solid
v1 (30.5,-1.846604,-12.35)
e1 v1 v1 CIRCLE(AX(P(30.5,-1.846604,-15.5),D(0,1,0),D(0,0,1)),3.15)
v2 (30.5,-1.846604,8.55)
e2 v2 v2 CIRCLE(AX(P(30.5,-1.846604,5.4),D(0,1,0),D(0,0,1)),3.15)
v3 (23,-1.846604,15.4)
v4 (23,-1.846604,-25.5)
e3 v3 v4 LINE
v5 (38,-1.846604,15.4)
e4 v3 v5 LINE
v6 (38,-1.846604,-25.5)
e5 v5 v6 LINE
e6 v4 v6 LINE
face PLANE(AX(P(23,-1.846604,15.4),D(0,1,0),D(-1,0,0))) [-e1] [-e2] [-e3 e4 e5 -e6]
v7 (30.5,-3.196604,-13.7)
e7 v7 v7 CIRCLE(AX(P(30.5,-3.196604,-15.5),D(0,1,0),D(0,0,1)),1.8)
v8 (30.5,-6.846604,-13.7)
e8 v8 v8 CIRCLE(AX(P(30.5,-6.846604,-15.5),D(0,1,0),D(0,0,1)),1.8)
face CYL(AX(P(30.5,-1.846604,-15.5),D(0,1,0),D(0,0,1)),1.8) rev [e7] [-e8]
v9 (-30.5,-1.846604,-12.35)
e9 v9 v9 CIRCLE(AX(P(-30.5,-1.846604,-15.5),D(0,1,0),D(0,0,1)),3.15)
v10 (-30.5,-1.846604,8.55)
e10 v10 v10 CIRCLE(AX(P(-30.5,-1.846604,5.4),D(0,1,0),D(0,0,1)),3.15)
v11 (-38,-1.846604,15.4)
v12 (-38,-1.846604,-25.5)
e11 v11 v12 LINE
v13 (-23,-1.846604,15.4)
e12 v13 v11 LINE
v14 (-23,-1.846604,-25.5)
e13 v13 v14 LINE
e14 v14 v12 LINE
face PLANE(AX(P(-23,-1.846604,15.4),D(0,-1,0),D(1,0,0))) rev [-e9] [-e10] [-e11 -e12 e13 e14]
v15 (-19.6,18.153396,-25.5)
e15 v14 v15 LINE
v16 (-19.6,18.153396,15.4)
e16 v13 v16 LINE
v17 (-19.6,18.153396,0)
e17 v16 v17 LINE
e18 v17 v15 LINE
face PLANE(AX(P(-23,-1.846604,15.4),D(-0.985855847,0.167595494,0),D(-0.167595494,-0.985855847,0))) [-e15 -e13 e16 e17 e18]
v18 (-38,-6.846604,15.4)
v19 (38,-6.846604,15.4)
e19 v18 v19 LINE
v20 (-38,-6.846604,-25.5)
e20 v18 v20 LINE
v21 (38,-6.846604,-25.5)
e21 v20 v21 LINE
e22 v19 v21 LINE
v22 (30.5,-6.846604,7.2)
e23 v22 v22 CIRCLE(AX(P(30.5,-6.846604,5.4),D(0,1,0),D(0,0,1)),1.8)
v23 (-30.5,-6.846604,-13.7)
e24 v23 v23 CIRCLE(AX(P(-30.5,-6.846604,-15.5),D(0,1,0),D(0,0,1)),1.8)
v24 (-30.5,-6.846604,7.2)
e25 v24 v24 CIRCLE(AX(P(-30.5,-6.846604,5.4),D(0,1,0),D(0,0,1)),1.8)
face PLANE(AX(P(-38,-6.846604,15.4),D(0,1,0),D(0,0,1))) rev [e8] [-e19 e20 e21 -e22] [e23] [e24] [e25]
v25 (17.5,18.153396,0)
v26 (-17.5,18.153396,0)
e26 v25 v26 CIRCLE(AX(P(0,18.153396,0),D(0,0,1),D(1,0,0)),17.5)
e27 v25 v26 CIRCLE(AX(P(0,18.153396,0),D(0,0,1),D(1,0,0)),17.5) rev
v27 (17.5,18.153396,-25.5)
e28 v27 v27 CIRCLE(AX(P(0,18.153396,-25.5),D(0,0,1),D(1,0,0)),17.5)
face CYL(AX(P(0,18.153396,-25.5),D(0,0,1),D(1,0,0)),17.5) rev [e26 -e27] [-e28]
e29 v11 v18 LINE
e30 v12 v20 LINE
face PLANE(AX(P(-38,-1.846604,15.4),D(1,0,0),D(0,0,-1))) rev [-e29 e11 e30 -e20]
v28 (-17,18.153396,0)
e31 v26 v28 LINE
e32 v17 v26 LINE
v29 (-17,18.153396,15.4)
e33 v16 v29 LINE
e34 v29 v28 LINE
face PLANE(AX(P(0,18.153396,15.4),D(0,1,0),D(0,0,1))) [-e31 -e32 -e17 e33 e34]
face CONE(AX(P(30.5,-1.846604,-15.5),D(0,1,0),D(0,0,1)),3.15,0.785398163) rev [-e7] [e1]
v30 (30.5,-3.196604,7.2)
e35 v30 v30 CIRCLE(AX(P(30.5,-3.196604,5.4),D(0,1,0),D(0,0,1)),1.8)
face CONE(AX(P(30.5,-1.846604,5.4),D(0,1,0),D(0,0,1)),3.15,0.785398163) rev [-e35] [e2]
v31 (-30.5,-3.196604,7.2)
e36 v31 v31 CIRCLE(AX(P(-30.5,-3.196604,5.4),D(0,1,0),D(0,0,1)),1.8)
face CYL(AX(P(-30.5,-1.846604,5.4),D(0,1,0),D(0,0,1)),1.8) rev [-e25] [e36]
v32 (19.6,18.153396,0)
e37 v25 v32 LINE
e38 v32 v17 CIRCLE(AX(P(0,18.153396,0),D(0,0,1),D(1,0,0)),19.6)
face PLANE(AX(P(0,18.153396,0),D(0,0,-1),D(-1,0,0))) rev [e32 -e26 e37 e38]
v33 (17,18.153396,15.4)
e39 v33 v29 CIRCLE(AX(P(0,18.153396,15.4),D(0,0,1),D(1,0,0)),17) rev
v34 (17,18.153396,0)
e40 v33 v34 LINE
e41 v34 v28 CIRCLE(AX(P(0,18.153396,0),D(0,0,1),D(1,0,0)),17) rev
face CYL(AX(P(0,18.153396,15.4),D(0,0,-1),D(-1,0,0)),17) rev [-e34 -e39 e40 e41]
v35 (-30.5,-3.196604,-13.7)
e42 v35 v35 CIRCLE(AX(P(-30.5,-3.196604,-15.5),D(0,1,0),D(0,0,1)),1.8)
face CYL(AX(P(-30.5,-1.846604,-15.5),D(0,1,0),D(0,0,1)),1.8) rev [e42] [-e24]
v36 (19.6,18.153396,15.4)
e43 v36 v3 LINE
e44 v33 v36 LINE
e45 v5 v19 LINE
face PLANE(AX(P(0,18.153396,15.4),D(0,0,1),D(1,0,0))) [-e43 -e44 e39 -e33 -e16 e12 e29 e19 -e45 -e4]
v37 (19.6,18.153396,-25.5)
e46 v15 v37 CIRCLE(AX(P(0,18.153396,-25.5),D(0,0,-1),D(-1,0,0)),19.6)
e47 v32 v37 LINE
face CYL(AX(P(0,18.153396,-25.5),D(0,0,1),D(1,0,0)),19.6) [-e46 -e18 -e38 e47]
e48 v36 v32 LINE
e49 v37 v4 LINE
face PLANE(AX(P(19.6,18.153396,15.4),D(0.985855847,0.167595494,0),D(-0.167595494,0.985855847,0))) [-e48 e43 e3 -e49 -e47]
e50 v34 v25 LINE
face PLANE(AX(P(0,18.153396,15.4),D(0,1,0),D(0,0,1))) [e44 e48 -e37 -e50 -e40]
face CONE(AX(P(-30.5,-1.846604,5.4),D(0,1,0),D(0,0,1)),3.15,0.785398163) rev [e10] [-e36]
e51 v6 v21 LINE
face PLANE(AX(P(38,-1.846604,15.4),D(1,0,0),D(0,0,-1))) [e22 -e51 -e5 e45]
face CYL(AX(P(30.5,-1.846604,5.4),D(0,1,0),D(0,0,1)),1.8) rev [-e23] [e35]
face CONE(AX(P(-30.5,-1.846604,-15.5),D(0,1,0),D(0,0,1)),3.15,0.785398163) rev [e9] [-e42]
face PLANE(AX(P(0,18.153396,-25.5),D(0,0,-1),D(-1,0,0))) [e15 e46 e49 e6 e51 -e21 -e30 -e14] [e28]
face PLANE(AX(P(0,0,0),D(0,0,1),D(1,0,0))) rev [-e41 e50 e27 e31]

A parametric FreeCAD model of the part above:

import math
import FreeCAD as App
import Part
import Sketcher
from FreeCAD import Vector
Q = App.Units.Quantity

doc = App.newDocument("Part")
body = doc.addObject("PartDesign::Body", "Body")

# Sketch on XY plane
sketch1 = body.newObject("Sketcher::SketchObject", "Sketch")
sketch1.AttachmentSupport = (doc.getObject("XY_Plane"), [""])
sketch1.MapMode = "FlatFace"
sketch1.addGeometry(Part.Circle(Vector(0, 18, 0), Vector(0, 0, 1), 20), False)
sketch1.addGeometry(Part.Circle(Vector(0, 18, 0), Vector(0, 0, 1), 18), False)
sketch1.addConstraint(Sketcher.Constraint("Coincident", 1, 3, 0, 3))
sketch1.addConstraint(Sketcher.Constraint("PointOnObject", 0, 3, -2))
sketch1.addConstraint(Sketcher.Constraint("Diameter", 1, Q("35 mm")))
sketch1.addConstraint(Sketcher.Constraint("Diameter", 0, Q("39.2 mm")))
sketch1.addConstraint(Sketcher.Constraint("DistanceY", -1, 1, 0, 3, Q("18.153396 mm")))
pad1 = body.newObject("PartDesign::Pad", "Pad")
pad1.Profile = sketch1
pad1.Length = 25.5
pad1.Reversed = True

# Sketch on XY plane
sketch2 = body.newObject("Sketcher::SketchObject", "Sketch001")
sketch2.AttachmentSupport = (doc.getObject("XY_Plane"), [""])
sketch2.MapMode = "FlatFace"
sketch2.addGeometry(Part.LineSegment(Vector(-23, -2, 0), Vector(-38, -2, 0)), False)
sketch2.addGeometry(Part.LineSegment(Vector(-38, -2, 0), Vector(-38, -7, 0)), False)
sketch2.addGeometry(Part.LineSegment(Vector(-38, -7, 0), Vector(38, -7, 0)), False)
sketch2.addGeometry(Part.LineSegment(Vector(38, -7, 0), Vector(38, -2, 0)), False)
sketch2.addGeometry(Part.LineSegment(Vector(38, -2, 0), Vector(23, -2, 0)), False)
sketch2.addGeometry(Part.LineSegment(Vector(23, -2, 0), Vector(20, 18, 0)), False)
sketch2.addGeometry(Part.ArcOfCircle(Part.Circle(Vector(0, 18, 0), Vector(0, 0, 1), 20), math.radians(180), math.radians(360)), False)
sketch2.addGeometry(Part.LineSegment(Vector(-20, 18, 0), Vector(-23, -2, 0)), False)
sketch2.addConstraint(Sketcher.Constraint("Coincident", 0, 2, 1, 1))
sketch2.addConstraint(Sketcher.Constraint("Coincident", 1, 2, 2, 1))
sketch2.addConstraint(Sketcher.Constraint("Coincident", 2, 2, 3, 1))
sketch2.addConstraint(Sketcher.Constraint("Coincident", 3, 2, 4, 1))
sketch2.addConstraint(Sketcher.Constraint("Coincident", 4, 2, 5, 1))
sketch2.addConstraint(Sketcher.Constraint("Coincident", 5, 2, 6, 2))
sketch2.addConstraint(Sketcher.Constraint("Coincident", 6, 1, 7, 1))
sketch2.addConstraint(Sketcher.Constraint("Coincident", 7, 2, 0, 1))
sketch2.addConstraint(Sketcher.Constraint("Horizontal", 0))
sketch2.addConstraint(Sketcher.Constraint("Vertical", 1))
sketch2.addConstraint(Sketcher.Constraint("Horizontal", 2))
sketch2.addConstraint(Sketcher.Constraint("Vertical", 3))
sketch2.addConstraint(Sketcher.Constraint("Horizontal", 4))
sketch2.addConstraint(Sketcher.Constraint("Symmetric", 0, 2, 3, 2, -2))
sketch2.addConstraint(Sketcher.Constraint("Symmetric", 5, 2, 6, 1, -2))
sketch2.addConstraint(Sketcher.Constraint("Horizontal", 6, 3, 5, 2))
sketch2.addConstraint(Sketcher.Constraint("Equal", 0, 4))
sketch2.addConstraint(Sketcher.Constraint("Radius", 6, Q("19.6 mm")))
sketch2.addConstraint(Sketcher.Constraint("DistanceX", 0, 2, 0, 1, Q("15 mm")))
sketch2.addConstraint(Sketcher.Constraint("DistanceX", 2, 1, 2, 2, Q("76 mm")))
sketch2.addConstraint(Sketcher.Constraint("DistanceY", 1, 2, 1, 1, Q("5 mm")))
sketch2.addConstraint(Sketcher.Constraint("DistanceY", 0, 2, 6, 3, Q("20 mm")))
sketch2.addConstraint(Sketcher.Constraint("DistanceY", -1, 1, 6, 3, Q("18.153396 mm")))
pad2 = body.newObject("PartDesign::Pad", "Pad001")
pad2.Profile = sketch2
pad2.Type = "TwoLengths"
pad2.Length = 15.4
pad2.Length2 = 25.5

# Sketch on XZ plane
sketch3 = body.newObject("Sketcher::SketchObject", "Sketch002")
sketch3.AttachmentSupport = (doc.getObject("XZ_Plane"), [""])
sketch3.MapMode = "FlatFace"
sketch3.AttachmentOffset = App.Placement(Vector(0, 0, 1.846604), App.Rotation())
sketch3.addGeometry(Part.Circle(Vector(-30.5, -15.5, 0), Vector(0, 0, 1), 1.8), False)
sketch3.addGeometry(Part.Circle(Vector(-30.5, 5.4, 0), Vector(0, 0, 1), 1.8), False)
sketch3.addConstraint(Sketcher.Constraint("Equal", 0, 1))
sketch3.addConstraint(Sketcher.Constraint("Vertical", 0, 3, 1, 3))
sketch3.addConstraint(Sketcher.Constraint("Diameter", 0, Q("3.6 mm")))
sketch3.addConstraint(Sketcher.Constraint("DistanceX", 0, 3, -1, 1, Q("30.5 mm")))
sketch3.addConstraint(Sketcher.Constraint("DistanceY", 0, 3, -1, 1, Q("15.5 mm")))
sketch3.addConstraint(Sketcher.Constraint("DistanceY", -1, 1, 1, 3, Q("5.4 mm")))
doc.recompute()
hole = body.newObject("PartDesign::Hole", "Hole")
hole.Profile = sketch3
hole.ThreadType = "None"
hole.Diameter = 3.6
hole.DepthType = "ThroughAll"
hole.HoleCutType = "Countersink"
hole.HoleCutDiameter = 6.3
hole.HoleCutCountersinkAngle = 90
hole.Reversed = True

# Sketch on XZ plane
sketch4 = body.newObject("Sketcher::SketchObject", "Sketch003")
sketch4.AttachmentSupport = (doc.getObject("XZ_Plane"), [""])
sketch4.MapMode = "FlatFace"
sketch4.AttachmentOffset = App.Placement(Vector(0, 0, 1.846604), App.Rotation())
sketch4.addGeometry(Part.Circle(Vector(30.5, 5.4, 0), Vector(0, 0, 1), 1.8), False)
sketch4.addGeometry(Part.Circle(Vector(30.5, -15.5, 0), Vector(0, 0, 1), 1.8), False)
sketch4.addConstraint(Sketcher.Constraint("Equal", 0, 1))
sketch4.addConstraint(Sketcher.Constraint("Vertical", 0, 3, 1, 3))
sketch4.addConstraint(Sketcher.Constraint("Diameter", 0, Q("3.6 mm")))
sketch4.addConstraint(Sketcher.Constraint("DistanceX", -1, 1, 0, 3, Q("30.5 mm")))
sketch4.addConstraint(Sketcher.Constraint("DistanceY", -1, 1, 0, 3, Q("5.4 mm")))
sketch4.addConstraint(Sketcher.Constraint("DistanceY", 1, 3, -1, 1, Q("15.5 mm")))
doc.recompute()
hole2 = body.newObject("PartDesign::Hole", "Hole001")
hole2.Profile = sketch4
hole2.ThreadType = "None"
hole2.Diameter = 3.6
hole2.DepthType = "ThroughAll"
hole2.HoleCutType = "Countersink"
hole2.HoleCutDiameter = 6.3
hole2.HoleCutCountersinkAngle = 90
hole2.Reversed = True

# Sketch on XY plane
sketch5 = body.newObject("Sketcher::SketchObject", "Sketch004")
sketch5.AttachmentSupport = (doc.getObject("XY_Plane"), [""])
sketch5.MapMode = "FlatFace"
sketch5.addGeometry(Part.ArcOfCircle(Part.Circle(Vector(0, 18.2, 0), Vector(0, 0, 1), 19.6), math.radians(180), math.radians(360)), False)
sketch5.addGeometry(Part.LineSegment(Vector(19.6, 18.2, 0), Vector(17, 18.2, 0)), False)
sketch5.addGeometry(Part.ArcOfCircle(Part.Circle(Vector(0, 18.2, 0), Vector(0, 0, 1), 17), math.radians(180), math.radians(360)), False)
sketch5.addGeometry(Part.LineSegment(Vector(-17, 18.2, 0), Vector(-19.6, 18.2, 0)), False)
sketch5.addConstraint(Sketcher.Constraint("Coincident", 0, 2, 1, 1))
sketch5.addConstraint(Sketcher.Constraint("Coincident", 1, 2, 2, 2))
sketch5.addConstraint(Sketcher.Constraint("Coincident", 2, 1, 3, 1))
sketch5.addConstraint(Sketcher.Constraint("Coincident", 3, 2, 0, 1))
sketch5.addConstraint(Sketcher.Constraint("Horizontal", 1))
sketch5.addConstraint(Sketcher.Constraint("Horizontal", 3))
sketch5.addConstraint(Sketcher.Constraint("Coincident", 2, 3, 0, 3))
sketch5.addConstraint(Sketcher.Constraint("Symmetric", 1, 2, 2, 1, -2))
sketch5.addConstraint(Sketcher.Constraint("Horizontal", 2, 3, 0, 2))
sketch5.addConstraint(Sketcher.Constraint("Radius", 2, Q("17 mm")))
sketch5.addConstraint(Sketcher.Constraint("Radius", 0, Q("19.6 mm")))
sketch5.addConstraint(Sketcher.Constraint("DistanceY", -1, 1, 0, 3, Q("18.153396 mm")))
pad3 = body.newObject("PartDesign::Pad", "Pad002")
pad3.Profile = sketch5
pad3.Length = 15.4

doc.recompute()
